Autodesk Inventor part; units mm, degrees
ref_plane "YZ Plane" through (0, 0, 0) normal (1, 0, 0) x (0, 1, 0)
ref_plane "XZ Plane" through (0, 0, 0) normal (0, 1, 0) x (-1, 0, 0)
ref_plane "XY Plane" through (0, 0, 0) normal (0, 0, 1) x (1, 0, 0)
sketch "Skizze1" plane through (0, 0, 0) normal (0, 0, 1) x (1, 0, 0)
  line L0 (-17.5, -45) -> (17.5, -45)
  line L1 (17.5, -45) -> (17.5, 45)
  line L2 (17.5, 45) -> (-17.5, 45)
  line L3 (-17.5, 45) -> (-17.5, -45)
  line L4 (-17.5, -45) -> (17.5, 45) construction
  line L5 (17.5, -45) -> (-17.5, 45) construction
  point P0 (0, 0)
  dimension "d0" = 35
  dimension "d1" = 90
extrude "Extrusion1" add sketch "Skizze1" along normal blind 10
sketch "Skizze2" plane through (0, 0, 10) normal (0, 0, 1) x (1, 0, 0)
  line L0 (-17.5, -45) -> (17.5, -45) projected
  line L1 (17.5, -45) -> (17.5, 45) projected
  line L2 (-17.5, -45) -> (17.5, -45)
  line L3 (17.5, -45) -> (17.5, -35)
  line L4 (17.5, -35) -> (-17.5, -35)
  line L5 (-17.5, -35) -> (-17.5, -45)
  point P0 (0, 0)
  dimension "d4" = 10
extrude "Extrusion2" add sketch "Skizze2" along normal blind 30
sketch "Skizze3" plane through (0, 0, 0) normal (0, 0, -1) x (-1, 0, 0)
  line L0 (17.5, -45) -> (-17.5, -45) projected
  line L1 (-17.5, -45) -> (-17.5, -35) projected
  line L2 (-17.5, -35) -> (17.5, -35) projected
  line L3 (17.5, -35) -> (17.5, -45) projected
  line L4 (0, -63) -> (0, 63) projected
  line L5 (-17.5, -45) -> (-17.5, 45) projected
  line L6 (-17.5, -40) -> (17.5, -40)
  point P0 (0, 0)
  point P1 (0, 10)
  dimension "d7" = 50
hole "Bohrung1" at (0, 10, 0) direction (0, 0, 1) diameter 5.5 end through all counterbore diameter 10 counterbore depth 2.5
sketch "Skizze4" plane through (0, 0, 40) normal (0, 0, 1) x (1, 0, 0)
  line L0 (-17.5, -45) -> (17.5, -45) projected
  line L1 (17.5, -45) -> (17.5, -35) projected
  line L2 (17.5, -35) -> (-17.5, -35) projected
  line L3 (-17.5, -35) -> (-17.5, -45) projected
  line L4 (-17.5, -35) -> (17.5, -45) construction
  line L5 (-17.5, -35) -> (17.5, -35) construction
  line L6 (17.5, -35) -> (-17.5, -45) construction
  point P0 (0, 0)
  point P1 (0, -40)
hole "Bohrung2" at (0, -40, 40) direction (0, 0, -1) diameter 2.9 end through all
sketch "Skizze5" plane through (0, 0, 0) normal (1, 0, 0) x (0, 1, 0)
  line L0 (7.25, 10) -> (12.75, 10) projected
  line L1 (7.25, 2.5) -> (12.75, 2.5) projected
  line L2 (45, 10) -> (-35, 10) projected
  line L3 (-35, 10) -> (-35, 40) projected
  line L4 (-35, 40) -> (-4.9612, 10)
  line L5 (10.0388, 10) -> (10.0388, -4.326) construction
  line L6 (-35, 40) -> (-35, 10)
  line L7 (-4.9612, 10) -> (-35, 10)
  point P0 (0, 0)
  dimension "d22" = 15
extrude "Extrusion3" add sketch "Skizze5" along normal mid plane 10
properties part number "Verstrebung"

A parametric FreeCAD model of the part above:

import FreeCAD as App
import Part
import Sketcher

V = App.Vector


def add_polygon(sketch, points):
    """Adds a closed chain of lines whose ends are joined by coincident constraints."""
    first, n = sketch.GeometryCount, len(points)
    for a, b in zip(points, points[1:] + points[:1]):
        sketch.addGeometry(Part.LineSegment(App.Vector(*a, 0), App.Vector(*b, 0)), False)
    for i in range(n):
        sketch.addConstraint(Sketcher.Constraint("Coincident", first + i, 2, first + (i + 1) % n, 1))

doc = App.newDocument("Part")
body = doc.addObject("PartDesign::Body", "Body")

# Sketch on XY plane
sketch1 = body.newObject("Sketcher::SketchObject", "Sketch")
sketch1.AttachmentSupport = (doc.getObject("XY_Plane"), [""])
sketch1.MapMode = "FlatFace"
add_polygon(sketch1, [(-18, 45), (-18, -45), (18, -45), (18, 45)])  # lines 0-3
sketch1.addConstraint([
    Sketcher.Constraint("Vertical", 0),
    Sketcher.Constraint("Horizontal", 1),
    Sketcher.Constraint("Vertical", 2),
    Sketcher.Constraint("Horizontal", 3),
    Sketcher.Constraint("Symmetric", 0, 2, 2, 2, -1, 1),
    Sketcher.Constraint("DistanceX", 1, 1, 1, 2, 35.0),
    Sketcher.Constraint("DistanceY", 0, 2, 0, 1, 90.0),
])
pad1 = body.newObject("PartDesign::Pad", "Pad")
pad1.Profile = sketch1
pad1.Length = 10

# Sketch on XY plane
sketch2 = body.newObject("Sketcher::SketchObject", "Sketch001")
sketch2.AttachmentSupport = (doc.getObject("XY_Plane"), [""])
sketch2.MapMode = "FlatFace"
sketch2.AttachmentOffset = App.Placement(V(0, 0, 10), App.Rotation())
add_polygon(sketch2, [(-18, -35), (-18, -45), (18, -45), (18, -35)])  # lines 0-3
sketch2.addConstraint([
    Sketcher.Constraint("Vertical", 0),
    Sketcher.Constraint("Horizontal", 1),
    Sketcher.Constraint("Vertical", 2),
    Sketcher.Constraint("Horizontal", 3),
    Sketcher.Constraint("DistanceY", 0, 2, 0, 1, 10.0),
    Sketcher.Constraint("DistanceX", 1, 1, 1, 2, 35.0),
    Sketcher.Constraint("DistanceY", 0, 2, -1, 1, 45.0),
    Sketcher.Constraint("DistanceX", 0, 2, -1, 1, 17.5),
])
pad2 = body.newObject("PartDesign::Pad", "Pad001")
pad2.Profile = sketch2
pad2.Length = 30

# Sketch on XY plane
sketch3 = body.newObject("Sketcher::SketchObject", "Sketch002")
sketch3.AttachmentSupport = (doc.getObject("XY_Plane"), [""])
sketch3.MapMode = "FlatFace"
sketch3.addGeometry(Part.Circle(V(0, 10, 0), V(0, 0, 1), 2.8), False)
sketch3.addConstraint([
    Sketcher.Constraint("PointOnObject", 0, 3, -2),
    Sketcher.Constraint("Diameter", 0, 5.5),
    Sketcher.Constraint("DistanceY", -1, 1, 0, 3, 10.0),
])
doc.recompute()
hole = body.newObject("PartDesign::Hole", "Hole")
hole.Profile = sketch3
hole.ThreadType = "None"
hole.Diameter = 5.5
hole.DepthType = "ThroughAll"
hole.HoleCutType = "Counterbore"
hole.HoleCutDiameter = 10
hole.HoleCutDepth = 2.5
hole.Reversed = True

# Sketch on XY plane
sketch4 = body.newObject("Sketcher::SketchObject", "Sketch003")
sketch4.AttachmentSupport = (doc.getObject("XY_Plane"), [""])
sketch4.MapMode = "FlatFace"
sketch4.AttachmentOffset = App.Placement(V(0, 0, 40), App.Rotation())
sketch4.addGeometry(Part.Circle(V(0, -40, 0), V(0, 0, 1), 1.4), False)
sketch4.addConstraint([
    Sketcher.Constraint("PointOnObject", 0, 3, -2),
    Sketcher.Constraint("Diameter", 0, 2.9),
    Sketcher.Constraint("DistanceY", 0, 3, -1, 1, 40.0),
])
doc.recompute()
hole2 = body.newObject("PartDesign::Hole", "Hole001")
hole2.Profile = sketch4
hole2.ThreadType = "None"
hole2.Diameter = 2.9
hole2.DepthType = "ThroughAll"

# Sketch on YZ plane
sketch5 = body.newObject("Sketcher::SketchObject", "Sketch004")
sketch5.AttachmentSupport = (doc.getObject("YZ_Plane"), [""])
sketch5.MapMode = "FlatFace"
add_polygon(sketch5, [(-35, 10), (-5, 10), (-35, 40)])  # lines 0-2
sketch5.addConstraint([
    Sketcher.Constraint("Horizontal", 0),
    Sketcher.Constraint("Vertical", 2),
    Sketcher.Constraint("DistanceY", 2, 2, 2, 1, 30.0),
    Sketcher.Constraint("DistanceY", -1, 1, 0, 2, 10.0),
    Sketcher.Constraint("DistanceX", 1, 2, -1, 1, 35.0),
    Sketcher.Constraint("DistanceX", 0, 1, 0, 2, 30.0388),
])
pad3 = body.newObject("PartDesign::Pad", "Pad002")
pad3.Profile = sketch5
pad3.Length = 10
pad3.Midplane = True

doc.recompute()
